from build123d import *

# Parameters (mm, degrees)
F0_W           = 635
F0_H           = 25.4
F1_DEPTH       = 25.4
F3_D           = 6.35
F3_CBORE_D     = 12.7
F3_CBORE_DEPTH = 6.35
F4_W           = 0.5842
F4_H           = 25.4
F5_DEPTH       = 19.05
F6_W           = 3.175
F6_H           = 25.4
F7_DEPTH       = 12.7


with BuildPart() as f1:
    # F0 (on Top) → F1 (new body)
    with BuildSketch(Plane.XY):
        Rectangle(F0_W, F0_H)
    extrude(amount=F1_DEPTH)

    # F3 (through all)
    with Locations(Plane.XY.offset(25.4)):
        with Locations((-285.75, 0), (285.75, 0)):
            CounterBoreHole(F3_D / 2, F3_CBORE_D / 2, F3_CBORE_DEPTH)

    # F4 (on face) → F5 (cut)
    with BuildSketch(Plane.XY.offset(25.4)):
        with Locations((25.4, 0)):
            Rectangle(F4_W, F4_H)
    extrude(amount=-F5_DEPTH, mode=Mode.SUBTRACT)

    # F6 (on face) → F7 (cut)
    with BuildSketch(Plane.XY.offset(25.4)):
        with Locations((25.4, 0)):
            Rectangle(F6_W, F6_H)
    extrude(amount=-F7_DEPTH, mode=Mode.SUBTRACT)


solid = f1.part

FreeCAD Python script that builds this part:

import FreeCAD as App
import Part
import Sketcher
from FreeCAD import Vector
Q = App.Units.Quantity

doc = App.newDocument("Part")
body = doc.addObject("PartDesign::Body", "Body")

# Sketch on XY plane
sketch1 = body.newObject("Sketcher::SketchObject", "Sketch")
sketch1.AttachmentSupport = (doc.getObject("XY_Plane"), [""])
sketch1.MapMode = "FlatFace"
sketch1.addGeometry(Part.LineSegment(Vector(-318, 13, 0), Vector(-318, -13, 0)), False)
sketch1.addGeometry(Part.LineSegment(Vector(-318, -13, 0), Vector(318, -13, 0)), False)
sketch1.addGeometry(Part.LineSegment(Vector(318, -13, 0), Vector(318, 13, 0)), False)
sketch1.addGeometry(Part.LineSegment(Vector(318, 13, 0), Vector(-318, 13, 0)), False)
sketch1.addConstraint(Sketcher.Constraint("Coincident", 0, 2, 1, 1))
sketch1.addConstraint(Sketcher.Constraint("Coincident", 1, 2, 2, 1))
sketch1.addConstraint(Sketcher.Constraint("Coincident", 2, 2, 3, 1))
sketch1.addConstraint(Sketcher.Constraint("Coincident", 3, 2, 0, 1))
sketch1.addConstraint(Sketcher.Constraint("Vertical", 0))
sketch1.addConstraint(Sketcher.Constraint("Horizontal", 1))
sketch1.addConstraint(Sketcher.Constraint("Vertical", 2))
sketch1.addConstraint(Sketcher.Constraint("Horizontal", 3))
sketch1.addConstraint(Sketcher.Constraint("Symmetric", 0, 2, 2, 2, -1, 1))
sketch1.addConstraint(Sketcher.Constraint("DistanceX", 1, 1, 1, 2, Q("25 in")))
sketch1.addConstraint(Sketcher.Constraint("DistanceY", 0, 2, 0, 1, Q("1 in")))
pad1 = body.newObject("PartDesign::Pad", "Pad")
pad1.Profile = sketch1
pad1.Length = Q("1 in")

# Sketch on XY plane
sketch2 = body.newObject("Sketcher::SketchObject", "Sketch001")
sketch2.AttachmentSupport = (doc.getObject("XY_Plane"), [""])
sketch2.MapMode = "FlatFace"
sketch2.AttachmentOffset = App.Placement(Vector(0, 0, 1 * 25.4), App.Rotation())
sketch2.addGeometry(Part.Circle(Vector(-285.8, 0, 0), Vector(0, 0, 1), 3.2), False)
sketch2.addGeometry(Part.Circle(Vector(285.8, 0, 0), Vector(0, 0, 1), 3.2), False)
sketch2.addConstraint(Sketcher.Constraint("Equal", 0, 1))
sketch2.addConstraint(Sketcher.Constraint("Symmetric", 0, 3, 1, 3, -1, 1))
sketch2.addConstraint(Sketcher.Constraint("PointOnObject", 0, 3, -1))
sketch2.addConstraint(Sketcher.Constraint("Diameter", 0, Q("0.25 in")))
sketch2.addConstraint(Sketcher.Constraint("DistanceX", 0, 3, 1, 3, Q("22.5 in")))
doc.recompute()
hole = body.newObject("PartDesign::Hole", "Hole")
hole.Profile = sketch2
hole.ThreadType = "None"
hole.Diameter = Q("0.25 in")
hole.DepthType = "ThroughAll"
hole.HoleCutType = "Counterbore"
hole.HoleCutDiameter = Q("0.5 in")
hole.HoleCutDepth = Q("0.25 in")

# Sketch on XY plane
sketch3 = body.newObject("Sketcher::SketchObject", "Sketch002")
sketch3.AttachmentSupport = (doc.getObject("XY_Plane"), [""])
sketch3.MapMode = "FlatFace"
sketch3.AttachmentOffset = App.Placement(Vector(0, 0, 1 * 25.4), App.Rotation())
sketch3.addGeometry(Part.LineSegment(Vector(25.1, 12.7, 0), Vector(25.1, -12.7, 0)), False)
sketch3.addGeometry(Part.LineSegment(Vector(25.1, -12.7, 0), Vector(25.7, -12.7, 0)), False)
sketch3.addGeometry(Part.LineSegment(Vector(25.7, -12.7, 0), Vector(25.7, 12.7, 0)), False)
sketch3.addGeometry(Part.LineSegment(Vector(25.7, 12.7, 0), Vector(25.1, 12.7, 0)), False)
sketch3.addConstraint(Sketcher.Constraint("Coincident", 0, 2, 1, 1))
sketch3.addConstraint(Sketcher.Constraint("Coincident", 1, 2, 2, 1))
sketch3.addConstraint(Sketcher.Constraint("Coincident", 2, 2, 3, 1))
sketch3.addConstraint(Sketcher.Constraint("Coincident", 3, 2, 0, 1))
sketch3.addConstraint(Sketcher.Constraint("Vertical", 0))
sketch3.addConstraint(Sketcher.Constraint("Horizontal", 1))
sketch3.addConstraint(Sketcher.Constraint("Vertical", 2))
sketch3.addConstraint(Sketcher.Constraint("Horizontal", 3))
sketch3.addConstraint(Sketcher.Constraint("DistanceY", 0, 2, 0, 1, Q("1 in")))
sketch3.addConstraint(Sketcher.Constraint("DistanceY", 0, 2, -1, 1, Q("0.5 in")))
sketch3.addConstraint(Sketcher.Constraint("DistanceX", 1, 1, 1, 2, Q("0.023 in")))
sketch3.addConstraint(Sketcher.Constraint("DistanceX", -1, 1, 0, 2, Q("0.9885 in")))
pocket1 = body.newObject("PartDesign::Pocket", "Pocket")
pocket1.Profile = sketch3
pocket1.Length = Q("0.75 in")

# Sketch on XY plane
sketch4 = body.newObject("Sketcher::SketchObject", "Sketch003")
sketch4.AttachmentSupport = (doc.getObject("XY_Plane"), [""])
sketch4.MapMode = "FlatFace"
sketch4.AttachmentOffset = App.Placement(Vector(0, 0, 1 * 25.4), App.Rotation())
sketch4.addGeometry(Part.LineSegment(Vector(23.8, 12.7, 0), Vector(23.8, -12.7, 0)), False)
sketch4.addGeometry(Part.LineSegment(Vector(23.8, -12.7, 0), Vector(27, -12.7, 0)), False)
sketch4.addGeometry(Part.LineSegment(Vector(27, -12.7, 0), Vector(27, 12.7, 0)), False)
sketch4.addGeometry(Part.LineSegment(Vector(27, 12.7, 0), Vector(23.8, 12.7, 0)), False)
sketch4.addConstraint(Sketcher.Constraint("Coincident", 0, 2, 1, 1))
sketch4.addConstraint(Sketcher.Constraint("Coincident", 1, 2, 2, 1))
sketch4.addConstraint(Sketcher.Constraint("Coincident", 2, 2, 3, 1))
sketch4.addConstraint(Sketcher.Constraint("Coincident", 3, 2, 0, 1))
sketch4.addConstraint(Sketcher.Constraint("Vertical", 0))
sketch4.addConstraint(Sketcher.Constraint("Horizontal", 1))
sketch4.addConstraint(Sketcher.Constraint("Vertical", 2))
sketch4.addConstraint(Sketcher.Constraint("Horizontal", 3))
sketch4.addConstraint(Sketcher.Constraint("DistanceY", 0, 2, 0, 1, Q("1 in")))
sketch4.addConstraint(Sketcher.Constraint("DistanceY", 0, 2, -1, 1, Q("0.5 in")))
sketch4.addConstraint(Sketcher.Constraint("DistanceX", 1, 1, 1, 2, Q("0.125 in")))
sketch4.addConstraint(Sketcher.Constraint("DistanceX", -1, 1, 0, 2, Q("0.9375 in")))
pocket2 = body.newObject("PartDesign::Pocket", "Pocket001")
pocket2.Profile = sketch4
pocket2.Length = Q("0.5 in")

doc.recompute()
